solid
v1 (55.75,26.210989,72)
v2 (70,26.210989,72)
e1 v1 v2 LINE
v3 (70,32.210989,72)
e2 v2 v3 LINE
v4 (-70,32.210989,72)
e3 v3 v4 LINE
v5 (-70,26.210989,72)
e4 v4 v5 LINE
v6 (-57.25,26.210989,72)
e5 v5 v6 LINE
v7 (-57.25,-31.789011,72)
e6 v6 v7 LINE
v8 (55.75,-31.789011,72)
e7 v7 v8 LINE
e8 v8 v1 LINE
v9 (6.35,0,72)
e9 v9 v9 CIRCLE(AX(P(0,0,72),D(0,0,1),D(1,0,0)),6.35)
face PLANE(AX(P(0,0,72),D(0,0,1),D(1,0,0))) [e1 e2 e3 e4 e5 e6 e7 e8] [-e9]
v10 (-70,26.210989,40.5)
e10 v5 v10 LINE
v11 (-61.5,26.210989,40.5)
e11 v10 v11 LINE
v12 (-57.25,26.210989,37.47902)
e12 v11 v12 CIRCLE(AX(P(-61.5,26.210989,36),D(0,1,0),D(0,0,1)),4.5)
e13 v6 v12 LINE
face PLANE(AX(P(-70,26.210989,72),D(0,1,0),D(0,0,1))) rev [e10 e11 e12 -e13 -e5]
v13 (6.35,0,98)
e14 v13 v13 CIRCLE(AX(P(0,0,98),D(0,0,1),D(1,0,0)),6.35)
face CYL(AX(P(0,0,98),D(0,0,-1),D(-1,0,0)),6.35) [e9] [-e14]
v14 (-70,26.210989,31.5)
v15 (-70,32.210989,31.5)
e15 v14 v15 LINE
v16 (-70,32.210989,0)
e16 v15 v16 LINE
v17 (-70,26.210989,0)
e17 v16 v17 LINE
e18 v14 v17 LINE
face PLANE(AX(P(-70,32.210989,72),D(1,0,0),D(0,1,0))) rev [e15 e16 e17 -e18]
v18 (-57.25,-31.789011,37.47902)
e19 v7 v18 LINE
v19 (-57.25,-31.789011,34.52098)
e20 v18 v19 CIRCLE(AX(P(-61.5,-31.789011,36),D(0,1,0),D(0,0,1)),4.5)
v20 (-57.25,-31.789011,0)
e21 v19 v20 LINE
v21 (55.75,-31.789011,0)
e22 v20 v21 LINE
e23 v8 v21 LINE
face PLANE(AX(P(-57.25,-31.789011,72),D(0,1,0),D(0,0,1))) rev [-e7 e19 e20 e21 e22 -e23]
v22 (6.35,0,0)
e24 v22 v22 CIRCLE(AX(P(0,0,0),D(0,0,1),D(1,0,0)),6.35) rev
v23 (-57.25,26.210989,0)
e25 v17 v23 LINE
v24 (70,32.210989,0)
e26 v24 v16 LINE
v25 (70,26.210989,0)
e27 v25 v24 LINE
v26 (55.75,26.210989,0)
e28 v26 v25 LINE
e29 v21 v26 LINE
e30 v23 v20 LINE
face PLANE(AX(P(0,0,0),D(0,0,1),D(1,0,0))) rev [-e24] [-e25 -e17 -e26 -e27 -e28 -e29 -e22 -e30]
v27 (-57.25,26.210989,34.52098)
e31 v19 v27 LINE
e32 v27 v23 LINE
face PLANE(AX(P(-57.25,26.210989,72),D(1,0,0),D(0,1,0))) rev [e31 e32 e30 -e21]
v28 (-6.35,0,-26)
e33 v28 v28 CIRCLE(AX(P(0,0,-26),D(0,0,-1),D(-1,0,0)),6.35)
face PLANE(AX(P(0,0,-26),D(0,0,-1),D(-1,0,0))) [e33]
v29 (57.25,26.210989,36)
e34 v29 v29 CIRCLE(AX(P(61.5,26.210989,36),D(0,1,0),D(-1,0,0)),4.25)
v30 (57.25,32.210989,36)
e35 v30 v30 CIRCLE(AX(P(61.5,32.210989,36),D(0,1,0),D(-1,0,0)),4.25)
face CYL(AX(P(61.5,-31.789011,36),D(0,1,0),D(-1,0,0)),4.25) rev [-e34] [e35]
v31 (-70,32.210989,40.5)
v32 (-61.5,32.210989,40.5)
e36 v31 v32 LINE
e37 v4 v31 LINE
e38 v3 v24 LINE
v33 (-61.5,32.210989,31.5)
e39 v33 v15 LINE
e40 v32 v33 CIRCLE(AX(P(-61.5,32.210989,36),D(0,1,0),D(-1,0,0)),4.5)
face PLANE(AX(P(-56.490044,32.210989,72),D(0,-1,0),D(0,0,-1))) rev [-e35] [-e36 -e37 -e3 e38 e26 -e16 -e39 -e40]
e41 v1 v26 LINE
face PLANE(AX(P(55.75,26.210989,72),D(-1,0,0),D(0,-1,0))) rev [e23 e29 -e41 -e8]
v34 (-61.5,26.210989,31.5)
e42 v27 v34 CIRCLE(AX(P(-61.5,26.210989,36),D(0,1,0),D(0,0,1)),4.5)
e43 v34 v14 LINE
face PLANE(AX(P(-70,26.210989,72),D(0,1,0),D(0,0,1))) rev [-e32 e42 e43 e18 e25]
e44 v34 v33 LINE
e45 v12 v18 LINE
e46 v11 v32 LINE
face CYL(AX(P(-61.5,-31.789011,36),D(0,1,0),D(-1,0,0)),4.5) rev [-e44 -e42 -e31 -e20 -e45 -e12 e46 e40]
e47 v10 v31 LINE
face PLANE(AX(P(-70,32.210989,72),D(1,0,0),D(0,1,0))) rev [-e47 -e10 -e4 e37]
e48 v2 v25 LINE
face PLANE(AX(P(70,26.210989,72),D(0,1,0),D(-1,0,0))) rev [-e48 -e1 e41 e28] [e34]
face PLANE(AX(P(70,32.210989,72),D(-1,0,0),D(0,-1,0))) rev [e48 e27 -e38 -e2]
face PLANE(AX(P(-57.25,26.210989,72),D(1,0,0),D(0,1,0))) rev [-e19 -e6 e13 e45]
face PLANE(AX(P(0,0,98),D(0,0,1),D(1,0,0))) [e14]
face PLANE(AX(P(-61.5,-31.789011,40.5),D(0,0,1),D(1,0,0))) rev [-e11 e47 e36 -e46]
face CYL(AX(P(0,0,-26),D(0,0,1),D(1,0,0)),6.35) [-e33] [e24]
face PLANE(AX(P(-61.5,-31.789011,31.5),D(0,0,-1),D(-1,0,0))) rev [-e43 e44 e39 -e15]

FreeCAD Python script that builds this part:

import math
import FreeCAD as App
import Part
import Sketcher
Q = App.Units.Quantity

doc = App.newDocument("Part")
body = doc.addObject("PartDesign::Body", "Body")

sketch1 = body.newObject("Sketcher::SketchObject", "Sketch")
sketch1.AttachmentSupport = (doc.getObject("XY_Plane"), [""])
sketch1.MapMode = "FlatFace"
sketch1.addGeometry(Part.LineSegment(App.Vector(70, 32, 0), App.Vector(-70, 32, 0)), False)
sketch1.addGeometry(Part.LineSegment(App.Vector(-70, 32, 0), App.Vector(-70, 26, 0)), False)
sketch1.addGeometry(Part.LineSegment(App.Vector(-70, 26, 0), App.Vector(-57, 26, 0)), False)
sketch1.addGeometry(Part.LineSegment(App.Vector(-57, 26, 0), App.Vector(-57, -32, 0)), False)
sketch1.addGeometry(Part.LineSegment(App.Vector(-57, -32, 0), App.Vector(56, -32, 0)), False)
sketch1.addGeometry(Part.LineSegment(App.Vector(56, -32, 0), App.Vector(56, 26, 0)), False)
sketch1.addGeometry(Part.LineSegment(App.Vector(56, 26, 0), App.Vector(70, 26, 0)), False)
sketch1.addGeometry(Part.LineSegment(App.Vector(70, 26, 0), App.Vector(70, 32, 0)), False)
sketch1.addConstraint(Sketcher.Constraint("Coincident", 0, 2, 1, 1))
sketch1.addConstraint(Sketcher.Constraint("Coincident", 1, 2, 2, 1))
sketch1.addConstraint(Sketcher.Constraint("Coincident", 2, 2, 3, 1))
sketch1.addConstraint(Sketcher.Constraint("Coincident", 3, 2, 4, 1))
sketch1.addConstraint(Sketcher.Constraint("Coincident", 4, 2, 5, 1))
sketch1.addConstraint(Sketcher.Constraint("Coincident", 5, 2, 6, 1))
sketch1.addConstraint(Sketcher.Constraint("Coincident", 6, 2, 7, 1))
sketch1.addConstraint(Sketcher.Constraint("Coincident", 7, 2, 0, 1))
sketch1.addConstraint(Sketcher.Constraint("Horizontal", 0))
sketch1.addConstraint(Sketcher.Constraint("Vertical", 1))
sketch1.addConstraint(Sketcher.Constraint("Horizontal", 2))
sketch1.addConstraint(Sketcher.Constraint("Vertical", 3))
sketch1.addConstraint(Sketcher.Constraint("Horizontal", 4))
sketch1.addConstraint(Sketcher.Constraint("Vertical", 5))
sketch1.addConstraint(Sketcher.Constraint("Horizontal", 6))
sketch1.addConstraint(Sketcher.Constraint("Vertical", 7))
sketch1.addConstraint(Sketcher.Constraint("Symmetric", 1, 2, 6, 2, -2))
sketch1.addConstraint(Sketcher.Constraint("DistanceX", 0, 2, 0, 1, Q("140 mm")))
sketch1.addConstraint(Sketcher.Constraint("DistanceX", 4, 1, 4, 2, Q("113 mm")))
sketch1.addConstraint(Sketcher.Constraint("DistanceY", 1, 2, 1, 1, Q("6 mm")))
sketch1.addConstraint(Sketcher.Constraint("DistanceY", 3, 2, 3, 1, Q("58 mm")))
sketch1.addConstraint(Sketcher.Constraint("DistanceX", 2, 1, 2, 2, Q("12.75 mm")))
sketch1.addConstraint(Sketcher.Constraint("DistanceY", -1, 1, 0, 2, Q("32.210989 mm")))
pad1 = body.newObject("PartDesign::Pad", "Pad")
pad1.Profile = sketch1
pad1.Length = 72

sketch2 = body.newObject("Sketcher::SketchObject", "Sketch001")
sketch2.AttachmentSupport = (doc.getObject("XZ_Plane"), [""])
sketch2.MapMode = "FlatFace"
sketch2.AttachmentOffset = App.Placement(App.Vector(0, 0, -32.210989), App.Rotation())
sketch2.addGeometry(Part.Circle(App.Vector(61.5, 36, 0), App.Vector(0, 0, 1), 4.2), False)
sketch2.addGeometry(Part.LineSegment(App.Vector(-61.5, 31.5, 0), App.Vector(-70, 31.5, 0)), False)
sketch2.addGeometry(Part.LineSegment(App.Vector(-70, 31.5, 0), App.Vector(-70, 40.5, 0)), False)
sketch2.addGeometry(Part.LineSegment(App.Vector(-70, 40.5, 0), App.Vector(-61.5, 40.5, 0)), False)
sketch2.addGeometry(Part.ArcOfCircle(Part.Circle(App.Vector(-61.5, 36, 0), App.Vector(0, 0, 1), 4.5), math.radians(-90), math.radians(90)), False)
sketch2.addConstraint(Sketcher.Constraint("Coincident", 1, 2, 2, 1))
sketch2.addConstraint(Sketcher.Constraint("Coincident", 2, 2, 3, 1))
sketch2.addConstraint(Sketcher.Constraint("Tangent", 3, 2, 4, 2))
sketch2.addConstraint(Sketcher.Constraint("Tangent", 4, 1, 1, 1))
sketch2.addConstraint(Sketcher.Constraint("Horizontal", 1))
sketch2.addConstraint(Sketcher.Constraint("Vertical", 2))
sketch2.addConstraint(Sketcher.Constraint("Horizontal", 3))
sketch2.addConstraint(Sketcher.Constraint("Symmetric", 0, 3, 4, 3, -2))
sketch2.addConstraint(Sketcher.Constraint("Diameter", 0, Q("8.5 mm")))
sketch2.addConstraint(Sketcher.Constraint("Radius", 4, Q("4.5 mm")))
sketch2.addConstraint(Sketcher.Constraint("DistanceX", 1, 2, 1, 1, Q("8.5 mm")))
sketch2.addConstraint(Sketcher.Constraint("DistanceY", -1, 1, 0, 3, Q("36 mm")))
sketch2.addConstraint(Sketcher.Constraint("DistanceX", 1, 2, -1, 1, Q("70 mm")))
pocket1 = body.newObject("PartDesign::Pocket", "Pocket")
pocket1.Profile = sketch2
pocket1.Type = "ThroughAll"
pocket1.Reversed = True

sketch3 = body.newObject("Sketcher::SketchObject", "Sketch002")
sketch3.AttachmentSupport = (doc.getObject("XY_Plane"), [""])
sketch3.MapMode = "FlatFace"
sketch3.AttachmentOffset = App.Placement(App.Vector(0, 0, 72), App.Rotation())
sketch3.addGeometry(Part.Circle(App.Vector(0, 0, 0), App.Vector(0, 0, 1), 6), False)
sketch3.addConstraint(Sketcher.Constraint("Coincident", 0, 3, -1, 1))
sketch3.addConstraint(Sketcher.Constraint("Diameter", 0, Q("12.7 mm")))
pad2 = body.newObject("PartDesign::Pad", "Pad001")
pad2.Profile = sketch3
pad2.Length = 26

sketch4 = body.newObject("Sketcher::SketchObject", "Sketch003")
sketch4.AttachmentSupport = (doc.getObject("XY_Plane"), [""])
sketch4.MapMode = "FlatFace"
sketch4.addGeometry(Part.Circle(App.Vector(0, 0, 0), App.Vector(0, 0, 1), 6), False)
sketch4.addConstraint(Sketcher.Constraint("Coincident", 0, 3, -1, 1))
sketch4.addConstraint(Sketcher.Constraint("Diameter", 0, Q("12.7 mm")))
pad3 = body.newObject("PartDesign::Pad", "Pad002")
pad3.Profile = sketch4
pad3.Length = 26
pad3.Reversed = True

doc.recompute()
